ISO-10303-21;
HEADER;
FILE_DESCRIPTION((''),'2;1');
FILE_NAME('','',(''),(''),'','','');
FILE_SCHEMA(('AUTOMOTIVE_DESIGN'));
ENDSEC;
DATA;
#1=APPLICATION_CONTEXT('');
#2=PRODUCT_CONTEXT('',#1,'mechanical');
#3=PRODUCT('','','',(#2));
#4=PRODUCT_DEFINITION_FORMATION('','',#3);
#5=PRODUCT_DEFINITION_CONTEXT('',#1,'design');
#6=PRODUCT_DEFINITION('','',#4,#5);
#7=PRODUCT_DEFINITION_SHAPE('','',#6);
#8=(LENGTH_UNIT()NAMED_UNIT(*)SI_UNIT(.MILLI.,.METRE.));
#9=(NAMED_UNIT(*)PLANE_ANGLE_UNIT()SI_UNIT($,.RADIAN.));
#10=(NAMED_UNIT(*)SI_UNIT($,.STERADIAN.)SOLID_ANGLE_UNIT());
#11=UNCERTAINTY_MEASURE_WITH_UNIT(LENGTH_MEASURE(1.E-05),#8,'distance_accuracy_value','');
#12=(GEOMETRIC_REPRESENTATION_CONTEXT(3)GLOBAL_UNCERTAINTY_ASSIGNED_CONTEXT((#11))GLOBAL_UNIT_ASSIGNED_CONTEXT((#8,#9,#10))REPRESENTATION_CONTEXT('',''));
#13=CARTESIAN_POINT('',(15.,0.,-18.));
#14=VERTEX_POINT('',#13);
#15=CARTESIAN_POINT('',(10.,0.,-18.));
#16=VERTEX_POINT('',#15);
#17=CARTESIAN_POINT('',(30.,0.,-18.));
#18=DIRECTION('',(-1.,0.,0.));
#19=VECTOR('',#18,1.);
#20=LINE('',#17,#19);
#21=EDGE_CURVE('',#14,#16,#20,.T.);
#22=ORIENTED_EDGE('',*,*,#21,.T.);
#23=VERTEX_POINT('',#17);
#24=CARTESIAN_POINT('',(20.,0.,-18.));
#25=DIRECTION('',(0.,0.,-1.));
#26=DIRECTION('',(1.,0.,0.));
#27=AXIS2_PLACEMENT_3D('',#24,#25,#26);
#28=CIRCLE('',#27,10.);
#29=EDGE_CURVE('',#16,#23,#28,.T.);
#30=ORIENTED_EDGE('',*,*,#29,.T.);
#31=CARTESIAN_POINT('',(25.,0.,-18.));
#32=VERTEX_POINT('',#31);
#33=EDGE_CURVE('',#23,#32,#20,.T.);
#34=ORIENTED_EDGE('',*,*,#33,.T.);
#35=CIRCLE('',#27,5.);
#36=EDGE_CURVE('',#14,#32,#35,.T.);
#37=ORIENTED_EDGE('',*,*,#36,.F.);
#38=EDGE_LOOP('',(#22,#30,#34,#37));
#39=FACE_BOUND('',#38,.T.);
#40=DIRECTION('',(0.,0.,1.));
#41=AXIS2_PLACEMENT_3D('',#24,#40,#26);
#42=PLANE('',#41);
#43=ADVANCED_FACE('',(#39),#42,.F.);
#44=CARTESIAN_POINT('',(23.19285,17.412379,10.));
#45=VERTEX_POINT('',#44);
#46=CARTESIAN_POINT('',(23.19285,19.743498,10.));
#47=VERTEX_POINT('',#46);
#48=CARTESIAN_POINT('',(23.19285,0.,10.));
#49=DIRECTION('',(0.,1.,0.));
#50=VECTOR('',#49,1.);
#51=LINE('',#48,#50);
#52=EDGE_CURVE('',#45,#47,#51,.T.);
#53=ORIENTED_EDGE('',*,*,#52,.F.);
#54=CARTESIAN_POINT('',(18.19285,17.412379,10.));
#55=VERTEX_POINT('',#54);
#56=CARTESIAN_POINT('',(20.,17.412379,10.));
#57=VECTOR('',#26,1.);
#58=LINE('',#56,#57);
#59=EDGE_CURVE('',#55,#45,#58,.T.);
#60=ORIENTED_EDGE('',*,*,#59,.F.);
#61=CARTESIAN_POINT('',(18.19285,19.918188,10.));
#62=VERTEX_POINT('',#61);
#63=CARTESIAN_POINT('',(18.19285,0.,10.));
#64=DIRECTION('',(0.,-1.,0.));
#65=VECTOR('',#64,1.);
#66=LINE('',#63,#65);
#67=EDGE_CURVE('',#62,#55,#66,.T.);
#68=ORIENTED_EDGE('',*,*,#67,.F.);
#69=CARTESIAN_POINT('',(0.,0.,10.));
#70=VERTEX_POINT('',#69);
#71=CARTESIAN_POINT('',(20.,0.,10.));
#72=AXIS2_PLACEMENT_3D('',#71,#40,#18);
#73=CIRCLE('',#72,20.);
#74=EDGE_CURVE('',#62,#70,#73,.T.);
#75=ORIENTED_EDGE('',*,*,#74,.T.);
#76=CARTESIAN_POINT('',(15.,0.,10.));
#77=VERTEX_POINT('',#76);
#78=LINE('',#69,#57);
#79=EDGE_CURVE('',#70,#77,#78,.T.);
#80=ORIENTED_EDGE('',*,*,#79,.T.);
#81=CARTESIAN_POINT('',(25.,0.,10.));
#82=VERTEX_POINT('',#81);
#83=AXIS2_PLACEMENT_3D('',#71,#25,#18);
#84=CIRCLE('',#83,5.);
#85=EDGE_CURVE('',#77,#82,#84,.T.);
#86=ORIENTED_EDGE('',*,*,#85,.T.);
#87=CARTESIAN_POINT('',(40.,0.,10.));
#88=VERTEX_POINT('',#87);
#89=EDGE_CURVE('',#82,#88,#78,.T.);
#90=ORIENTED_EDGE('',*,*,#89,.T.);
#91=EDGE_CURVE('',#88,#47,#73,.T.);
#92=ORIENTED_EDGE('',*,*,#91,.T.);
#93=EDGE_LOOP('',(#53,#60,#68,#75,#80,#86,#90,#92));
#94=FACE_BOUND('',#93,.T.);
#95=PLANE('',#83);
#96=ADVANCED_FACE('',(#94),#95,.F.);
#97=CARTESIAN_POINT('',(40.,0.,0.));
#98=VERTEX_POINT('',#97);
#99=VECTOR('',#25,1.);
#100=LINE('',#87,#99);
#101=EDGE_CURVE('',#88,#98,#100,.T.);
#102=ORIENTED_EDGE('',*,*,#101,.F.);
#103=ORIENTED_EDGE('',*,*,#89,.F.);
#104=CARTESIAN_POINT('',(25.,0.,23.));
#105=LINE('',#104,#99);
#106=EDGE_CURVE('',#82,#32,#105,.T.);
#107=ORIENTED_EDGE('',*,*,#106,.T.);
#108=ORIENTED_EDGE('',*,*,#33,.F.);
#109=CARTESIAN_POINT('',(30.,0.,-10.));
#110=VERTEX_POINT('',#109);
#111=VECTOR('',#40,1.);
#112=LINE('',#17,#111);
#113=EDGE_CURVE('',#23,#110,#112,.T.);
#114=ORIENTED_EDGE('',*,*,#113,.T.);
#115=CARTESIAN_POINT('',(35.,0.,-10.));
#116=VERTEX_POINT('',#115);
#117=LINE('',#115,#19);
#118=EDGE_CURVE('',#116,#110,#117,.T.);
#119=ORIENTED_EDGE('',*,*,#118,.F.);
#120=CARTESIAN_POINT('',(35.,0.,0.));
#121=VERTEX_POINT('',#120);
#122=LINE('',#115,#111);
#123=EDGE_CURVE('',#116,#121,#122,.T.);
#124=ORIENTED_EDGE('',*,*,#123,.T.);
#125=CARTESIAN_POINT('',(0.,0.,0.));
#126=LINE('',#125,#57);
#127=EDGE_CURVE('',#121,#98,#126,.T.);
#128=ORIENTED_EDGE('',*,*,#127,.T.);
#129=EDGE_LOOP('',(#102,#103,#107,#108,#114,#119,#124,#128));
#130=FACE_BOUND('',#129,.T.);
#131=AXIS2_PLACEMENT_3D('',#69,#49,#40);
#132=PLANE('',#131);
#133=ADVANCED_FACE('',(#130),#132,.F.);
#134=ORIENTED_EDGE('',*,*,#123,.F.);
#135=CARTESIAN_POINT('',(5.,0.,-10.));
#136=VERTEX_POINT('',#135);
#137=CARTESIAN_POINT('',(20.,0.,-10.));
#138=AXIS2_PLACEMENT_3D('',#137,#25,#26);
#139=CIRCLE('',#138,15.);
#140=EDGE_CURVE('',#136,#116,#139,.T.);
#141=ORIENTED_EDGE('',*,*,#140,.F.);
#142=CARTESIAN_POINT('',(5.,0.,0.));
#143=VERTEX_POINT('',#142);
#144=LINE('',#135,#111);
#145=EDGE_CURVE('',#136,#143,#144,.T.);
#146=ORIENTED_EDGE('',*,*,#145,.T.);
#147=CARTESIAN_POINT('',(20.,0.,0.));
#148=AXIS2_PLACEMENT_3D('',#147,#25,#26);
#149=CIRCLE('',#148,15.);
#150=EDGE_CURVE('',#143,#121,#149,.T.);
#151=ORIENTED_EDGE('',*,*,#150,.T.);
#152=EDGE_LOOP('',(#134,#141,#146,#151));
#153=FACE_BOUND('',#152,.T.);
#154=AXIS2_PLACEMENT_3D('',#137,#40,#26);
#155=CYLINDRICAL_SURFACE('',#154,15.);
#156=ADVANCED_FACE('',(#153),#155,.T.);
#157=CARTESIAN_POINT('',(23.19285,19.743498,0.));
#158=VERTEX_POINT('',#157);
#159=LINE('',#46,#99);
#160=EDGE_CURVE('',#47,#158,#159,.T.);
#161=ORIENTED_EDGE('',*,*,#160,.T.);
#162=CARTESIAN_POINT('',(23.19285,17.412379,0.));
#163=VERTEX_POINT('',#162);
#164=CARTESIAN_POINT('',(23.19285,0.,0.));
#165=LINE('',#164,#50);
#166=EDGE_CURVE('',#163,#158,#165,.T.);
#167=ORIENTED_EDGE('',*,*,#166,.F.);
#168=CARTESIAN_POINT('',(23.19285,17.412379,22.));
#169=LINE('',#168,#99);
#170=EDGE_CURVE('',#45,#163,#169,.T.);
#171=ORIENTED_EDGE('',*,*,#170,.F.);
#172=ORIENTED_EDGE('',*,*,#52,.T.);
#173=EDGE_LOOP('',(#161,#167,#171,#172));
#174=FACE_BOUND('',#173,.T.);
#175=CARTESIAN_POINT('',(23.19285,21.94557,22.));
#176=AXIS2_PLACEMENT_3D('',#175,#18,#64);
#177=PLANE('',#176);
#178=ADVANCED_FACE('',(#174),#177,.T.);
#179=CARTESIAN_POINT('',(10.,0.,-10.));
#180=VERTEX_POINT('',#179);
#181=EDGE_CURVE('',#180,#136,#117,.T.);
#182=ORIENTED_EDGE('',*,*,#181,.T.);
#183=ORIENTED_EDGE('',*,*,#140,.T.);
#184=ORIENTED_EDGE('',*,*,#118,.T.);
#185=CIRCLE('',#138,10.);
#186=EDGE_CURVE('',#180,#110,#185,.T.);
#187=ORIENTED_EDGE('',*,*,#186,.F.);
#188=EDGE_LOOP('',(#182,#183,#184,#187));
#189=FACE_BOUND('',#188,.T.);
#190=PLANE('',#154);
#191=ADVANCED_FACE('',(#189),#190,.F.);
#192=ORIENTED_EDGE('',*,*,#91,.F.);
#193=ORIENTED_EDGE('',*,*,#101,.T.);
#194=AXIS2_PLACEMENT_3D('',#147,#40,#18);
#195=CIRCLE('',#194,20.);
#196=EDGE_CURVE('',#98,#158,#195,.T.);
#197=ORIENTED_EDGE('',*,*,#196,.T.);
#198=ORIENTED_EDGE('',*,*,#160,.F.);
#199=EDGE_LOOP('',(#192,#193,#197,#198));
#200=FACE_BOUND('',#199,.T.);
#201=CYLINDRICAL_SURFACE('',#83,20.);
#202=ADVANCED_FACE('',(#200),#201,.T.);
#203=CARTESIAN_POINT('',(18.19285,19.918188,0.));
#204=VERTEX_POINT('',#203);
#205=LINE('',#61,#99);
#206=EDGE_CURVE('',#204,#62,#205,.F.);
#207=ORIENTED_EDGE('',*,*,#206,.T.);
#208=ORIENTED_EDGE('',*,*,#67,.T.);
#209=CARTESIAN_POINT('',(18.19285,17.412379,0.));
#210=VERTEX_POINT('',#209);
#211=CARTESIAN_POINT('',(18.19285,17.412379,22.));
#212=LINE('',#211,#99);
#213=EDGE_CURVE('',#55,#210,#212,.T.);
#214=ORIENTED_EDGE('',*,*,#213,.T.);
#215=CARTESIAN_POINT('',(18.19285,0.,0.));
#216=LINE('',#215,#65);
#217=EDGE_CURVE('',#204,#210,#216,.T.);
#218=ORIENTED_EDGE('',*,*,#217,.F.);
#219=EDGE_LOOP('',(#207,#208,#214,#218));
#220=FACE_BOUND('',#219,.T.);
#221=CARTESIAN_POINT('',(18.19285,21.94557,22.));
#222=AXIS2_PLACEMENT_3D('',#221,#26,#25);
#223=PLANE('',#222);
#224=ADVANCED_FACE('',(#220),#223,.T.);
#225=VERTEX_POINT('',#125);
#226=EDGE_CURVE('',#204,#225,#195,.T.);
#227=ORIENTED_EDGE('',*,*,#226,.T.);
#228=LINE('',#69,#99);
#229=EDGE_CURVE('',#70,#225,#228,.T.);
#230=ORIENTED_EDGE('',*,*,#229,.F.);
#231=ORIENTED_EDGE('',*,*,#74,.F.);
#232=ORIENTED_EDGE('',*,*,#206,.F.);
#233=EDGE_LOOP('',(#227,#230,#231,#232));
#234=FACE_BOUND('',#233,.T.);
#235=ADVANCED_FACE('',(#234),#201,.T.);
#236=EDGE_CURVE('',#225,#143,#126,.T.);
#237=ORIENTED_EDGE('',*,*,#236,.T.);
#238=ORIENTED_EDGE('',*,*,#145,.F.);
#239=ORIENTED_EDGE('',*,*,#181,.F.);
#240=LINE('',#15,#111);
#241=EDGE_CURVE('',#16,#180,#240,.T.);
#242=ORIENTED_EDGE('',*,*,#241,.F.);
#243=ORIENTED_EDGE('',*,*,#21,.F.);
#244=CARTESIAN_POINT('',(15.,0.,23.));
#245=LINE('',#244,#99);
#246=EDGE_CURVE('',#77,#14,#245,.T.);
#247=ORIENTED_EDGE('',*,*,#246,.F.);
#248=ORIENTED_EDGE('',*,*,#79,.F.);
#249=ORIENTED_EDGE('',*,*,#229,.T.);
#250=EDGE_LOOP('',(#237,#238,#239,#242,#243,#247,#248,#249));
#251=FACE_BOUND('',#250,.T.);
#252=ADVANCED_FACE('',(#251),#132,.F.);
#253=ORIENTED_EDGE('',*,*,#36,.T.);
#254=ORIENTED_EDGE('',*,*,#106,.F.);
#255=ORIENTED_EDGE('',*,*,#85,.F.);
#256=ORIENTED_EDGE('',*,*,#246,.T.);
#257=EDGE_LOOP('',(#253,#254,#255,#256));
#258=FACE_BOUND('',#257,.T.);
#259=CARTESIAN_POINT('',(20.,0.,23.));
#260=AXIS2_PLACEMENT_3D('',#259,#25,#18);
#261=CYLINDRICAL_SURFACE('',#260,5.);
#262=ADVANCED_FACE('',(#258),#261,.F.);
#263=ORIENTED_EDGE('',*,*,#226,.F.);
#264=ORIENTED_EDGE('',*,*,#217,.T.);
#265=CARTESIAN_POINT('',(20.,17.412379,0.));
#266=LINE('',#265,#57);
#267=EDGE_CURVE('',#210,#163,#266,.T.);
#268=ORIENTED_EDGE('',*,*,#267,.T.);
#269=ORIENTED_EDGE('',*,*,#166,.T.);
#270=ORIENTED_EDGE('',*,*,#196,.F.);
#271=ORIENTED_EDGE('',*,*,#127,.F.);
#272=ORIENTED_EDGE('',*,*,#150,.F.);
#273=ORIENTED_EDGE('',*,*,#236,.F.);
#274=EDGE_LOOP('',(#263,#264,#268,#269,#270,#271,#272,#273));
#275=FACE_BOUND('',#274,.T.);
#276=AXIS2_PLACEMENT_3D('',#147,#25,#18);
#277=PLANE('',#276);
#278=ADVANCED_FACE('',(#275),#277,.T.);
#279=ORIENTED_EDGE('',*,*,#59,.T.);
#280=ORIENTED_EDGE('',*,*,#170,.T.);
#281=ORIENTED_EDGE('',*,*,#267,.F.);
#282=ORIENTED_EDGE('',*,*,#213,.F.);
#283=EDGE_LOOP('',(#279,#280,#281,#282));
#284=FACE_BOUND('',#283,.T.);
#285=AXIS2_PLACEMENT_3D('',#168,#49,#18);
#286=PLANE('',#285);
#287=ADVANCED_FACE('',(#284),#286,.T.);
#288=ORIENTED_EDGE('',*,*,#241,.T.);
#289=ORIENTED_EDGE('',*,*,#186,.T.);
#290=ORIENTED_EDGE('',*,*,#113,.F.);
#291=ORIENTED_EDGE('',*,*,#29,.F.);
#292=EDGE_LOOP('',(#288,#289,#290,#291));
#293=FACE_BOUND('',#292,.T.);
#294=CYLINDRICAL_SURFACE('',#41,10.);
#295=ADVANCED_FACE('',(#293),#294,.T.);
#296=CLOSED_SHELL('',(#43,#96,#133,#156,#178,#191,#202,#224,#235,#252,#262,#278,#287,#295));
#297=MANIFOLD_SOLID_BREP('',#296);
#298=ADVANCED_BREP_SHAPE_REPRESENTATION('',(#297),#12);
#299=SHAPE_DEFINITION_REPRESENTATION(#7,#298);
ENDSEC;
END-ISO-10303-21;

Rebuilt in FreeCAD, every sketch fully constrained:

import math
import FreeCAD as App
import Part
import Sketcher


def add_polygon(sketch, points):
    """Adds a closed chain of lines whose ends are joined by coincident constraints."""
    first, n = sketch.GeometryCount, len(points)
    for a, b in zip(points, points[1:] + points[:1]):
        sketch.addGeometry(Part.LineSegment(App.Vector(*a, 0), App.Vector(*b, 0)), False)
    for i in range(n):
        sketch.addConstraint(Sketcher.Constraint("Coincident", first + i, 2, first + (i + 1) % n, 1))

doc = App.newDocument("Part")
body = doc.addObject("PartDesign::Body", "Body")

# Sketch on XY plane
sketch1 = body.newObject("Sketcher::SketchObject", "Sketch")
sketch1.AttachmentSupport = (doc.getObject("XY_Plane"), [""])
sketch1.MapMode = "FlatFace"
sketch1.addGeometry(Part.LineSegment(App.Vector(0, 0, 0), App.Vector(40, 0, 0)), False)
sketch1.addGeometry(Part.ArcOfCircle(Part.Circle(App.Vector(20, 0, 0), App.Vector(0, 0, 1), 20), math.radians(0), math.radians(180)), False)
sketch1.addConstraint(Sketcher.Constraint("Coincident", 0, 1, 1, 2))
sketch1.addConstraint(Sketcher.Constraint("Coincident", 1, 1, 0, 2))
sketch1.addConstraint(Sketcher.Constraint("Horizontal", 0))
sketch1.addConstraint(Sketcher.Constraint("Coincident", 0, 1, -1, 1))
sketch1.addConstraint(Sketcher.Constraint("PointOnObject", 1, 3, -1))
sketch1.addConstraint(Sketcher.Constraint("Radius", 1, 20.0))
pad1 = body.newObject("PartDesign::Pad", "Pad")
pad1.Profile = sketch1
pad1.Length = 10

# Sketch on XY plane
sketch2 = body.newObject("Sketcher::SketchObject", "Sketch001")
sketch2.AttachmentSupport = (doc.getObject("XY_Plane"), [""])
sketch2.MapMode = "FlatFace"
sketch2.AttachmentOffset = App.Placement(App.Vector(0, 0, 10), App.Rotation())
add_polygon(sketch2, [(18.2, 21.9), (18.2, 17.4), (23.2, 17.4), (23.2, 21.9)])  # lines 0-3
sketch2.addConstraint(Sketcher.Constraint("Vertical", 0))
sketch2.addConstraint(Sketcher.Constraint("Horizontal", 1))
sketch2.addConstraint(Sketcher.Constraint("Vertical", 2))
sketch2.addConstraint(Sketcher.Constraint("Horizontal", 3))
sketch2.addConstraint(Sketcher.Constraint("DistanceX", 1, 1, 1, 2, 5.0))
sketch2.addConstraint(Sketcher.Constraint("DistanceY", 0, 2, 0, 1, 4.533191))
sketch2.addConstraint(Sketcher.Constraint("DistanceX", -1, 1, 0, 2, 18.19285))
sketch2.addConstraint(Sketcher.Constraint("DistanceY", -1, 1, 0, 2, 17.412379))
pocket1 = body.newObject("PartDesign::Pocket", "Pocket")
pocket1.Profile = sketch2
pocket1.Type = "ThroughAll"
pocket1.Midplane = True

# Sketch on XY plane
sketch3 = body.newObject("Sketcher::SketchObject", "Sketch002")
sketch3.AttachmentSupport = (doc.getObject("XY_Plane"), [""])
sketch3.MapMode = "FlatFace"
sketch3.addGeometry(Part.LineSegment(App.Vector(35, 0, 0), App.Vector(5, 0, 0)), False)
sketch3.addGeometry(Part.ArcOfCircle(Part.Circle(App.Vector(20, 0, 0), App.Vector(0, 0, 1), 15), math.radians(0), math.radians(180)), False)
sketch3.addConstraint(Sketcher.Constraint("Coincident", 0, 1, 1, 1))
sketch3.addConstraint(Sketcher.Constraint("Coincident", 1, 2, 0, 2))
sketch3.addConstraint(Sketcher.Constraint("Horizontal", 0))
sketch3.addConstraint(Sketcher.Constraint("PointOnObject", 1, 3, -1))
sketch3.addConstraint(Sketcher.Constraint("PointOnObject", 0, 1, -1))
sketch3.addConstraint(Sketcher.Constraint("Radius", 1, 15.0))
sketch3.addConstraint(Sketcher.Constraint("DistanceX", -1, 1, 1, 3, 20.0))
pad2 = body.newObject("PartDesign::Pad", "Pad001")
pad2.Profile = sketch3
pad2.Length = 10
pad2.Reversed = True

# Sketch on XY plane
sketch4 = body.newObject("Sketcher::SketchObject", "Sketch003")
sketch4.AttachmentSupport = (doc.getObject("XY_Plane"), [""])
sketch4.MapMode = "FlatFace"
sketch4.AttachmentOffset = App.Placement(App.Vector(0, 0, -10), App.Rotation())
sketch4.addGeometry(Part.LineSegment(App.Vector(30, 0, 0), App.Vector(10, 0, 0)), False)
sketch4.addGeometry(Part.ArcOfCircle(Part.Circle(App.Vector(20, 0, 0), App.Vector(0, 0, 1), 10), math.radians(0), math.radians(180)), False)
sketch4.addConstraint(Sketcher.Constraint("Coincident", 0, 1, 1, 1))
sketch4.addConstraint(Sketcher.Constraint("Coincident", 1, 2, 0, 2))
sketch4.addConstraint(Sketcher.Constraint("Horizontal", 0))
sketch4.addConstraint(Sketcher.Constraint("PointOnObject", 1, 3, -1))
sketch4.addConstraint(Sketcher.Constraint("PointOnObject", 0, 1, -1))
sketch4.addConstraint(Sketcher.Constraint("Radius", 1, 10.0))
sketch4.addConstraint(Sketcher.Constraint("DistanceX", -1, 1, 1, 3, 20.0))
pad3 = body.newObject("PartDesign::Pad", "Pad002")
pad3.Profile = sketch4
pad3.Length = 8
pad3.Reversed = True

# Sketch on XY plane
sketch5 = body.newObject("Sketcher::SketchObject", "Sketch004")
sketch5.AttachmentSupport = (doc.getObject("XY_Plane"), [""])
sketch5.MapMode = "FlatFace"
sketch5.AttachmentOffset = App.Placement(App.Vector(0, 0, -18), App.Rotation())
sketch5.addGeometry(Part.LineSegment(App.Vector(25, 0, 0), App.Vector(15, 0, 0)), False)
sketch5.addGeometry(Part.ArcOfCircle(Part.Circle(App.Vector(20, 0, 0), App.Vector(0, 0, 1), 5), math.radians(0), math.radians(180)), False)
sketch5.addConstraint(Sketcher.Constraint("Coincident", 0, 1, 1, 1))
sketch5.addConstraint(Sketcher.Constraint("Coincident", 1, 2, 0, 2))
sketch5.addConstraint(Sketcher.Constraint("Horizontal", 0))
sketch5.addConstraint(Sketcher.Constraint("PointOnObject", 1, 3, -1))
sketch5.addConstraint(Sketcher.Constraint("PointOnObject", 0, 1, -1))
sketch5.addConstraint(Sketcher.Constraint("Radius", 1, 5.0))
sketch5.addConstraint(Sketcher.Constraint("DistanceX", -1, 1, 1, 3, 20.0))
pocket2 = body.newObject("PartDesign::Pocket", "Pocket001")
pocket2.Profile = sketch5
pocket2.Length = 41
pocket2.Reversed = True

doc.recompute()
